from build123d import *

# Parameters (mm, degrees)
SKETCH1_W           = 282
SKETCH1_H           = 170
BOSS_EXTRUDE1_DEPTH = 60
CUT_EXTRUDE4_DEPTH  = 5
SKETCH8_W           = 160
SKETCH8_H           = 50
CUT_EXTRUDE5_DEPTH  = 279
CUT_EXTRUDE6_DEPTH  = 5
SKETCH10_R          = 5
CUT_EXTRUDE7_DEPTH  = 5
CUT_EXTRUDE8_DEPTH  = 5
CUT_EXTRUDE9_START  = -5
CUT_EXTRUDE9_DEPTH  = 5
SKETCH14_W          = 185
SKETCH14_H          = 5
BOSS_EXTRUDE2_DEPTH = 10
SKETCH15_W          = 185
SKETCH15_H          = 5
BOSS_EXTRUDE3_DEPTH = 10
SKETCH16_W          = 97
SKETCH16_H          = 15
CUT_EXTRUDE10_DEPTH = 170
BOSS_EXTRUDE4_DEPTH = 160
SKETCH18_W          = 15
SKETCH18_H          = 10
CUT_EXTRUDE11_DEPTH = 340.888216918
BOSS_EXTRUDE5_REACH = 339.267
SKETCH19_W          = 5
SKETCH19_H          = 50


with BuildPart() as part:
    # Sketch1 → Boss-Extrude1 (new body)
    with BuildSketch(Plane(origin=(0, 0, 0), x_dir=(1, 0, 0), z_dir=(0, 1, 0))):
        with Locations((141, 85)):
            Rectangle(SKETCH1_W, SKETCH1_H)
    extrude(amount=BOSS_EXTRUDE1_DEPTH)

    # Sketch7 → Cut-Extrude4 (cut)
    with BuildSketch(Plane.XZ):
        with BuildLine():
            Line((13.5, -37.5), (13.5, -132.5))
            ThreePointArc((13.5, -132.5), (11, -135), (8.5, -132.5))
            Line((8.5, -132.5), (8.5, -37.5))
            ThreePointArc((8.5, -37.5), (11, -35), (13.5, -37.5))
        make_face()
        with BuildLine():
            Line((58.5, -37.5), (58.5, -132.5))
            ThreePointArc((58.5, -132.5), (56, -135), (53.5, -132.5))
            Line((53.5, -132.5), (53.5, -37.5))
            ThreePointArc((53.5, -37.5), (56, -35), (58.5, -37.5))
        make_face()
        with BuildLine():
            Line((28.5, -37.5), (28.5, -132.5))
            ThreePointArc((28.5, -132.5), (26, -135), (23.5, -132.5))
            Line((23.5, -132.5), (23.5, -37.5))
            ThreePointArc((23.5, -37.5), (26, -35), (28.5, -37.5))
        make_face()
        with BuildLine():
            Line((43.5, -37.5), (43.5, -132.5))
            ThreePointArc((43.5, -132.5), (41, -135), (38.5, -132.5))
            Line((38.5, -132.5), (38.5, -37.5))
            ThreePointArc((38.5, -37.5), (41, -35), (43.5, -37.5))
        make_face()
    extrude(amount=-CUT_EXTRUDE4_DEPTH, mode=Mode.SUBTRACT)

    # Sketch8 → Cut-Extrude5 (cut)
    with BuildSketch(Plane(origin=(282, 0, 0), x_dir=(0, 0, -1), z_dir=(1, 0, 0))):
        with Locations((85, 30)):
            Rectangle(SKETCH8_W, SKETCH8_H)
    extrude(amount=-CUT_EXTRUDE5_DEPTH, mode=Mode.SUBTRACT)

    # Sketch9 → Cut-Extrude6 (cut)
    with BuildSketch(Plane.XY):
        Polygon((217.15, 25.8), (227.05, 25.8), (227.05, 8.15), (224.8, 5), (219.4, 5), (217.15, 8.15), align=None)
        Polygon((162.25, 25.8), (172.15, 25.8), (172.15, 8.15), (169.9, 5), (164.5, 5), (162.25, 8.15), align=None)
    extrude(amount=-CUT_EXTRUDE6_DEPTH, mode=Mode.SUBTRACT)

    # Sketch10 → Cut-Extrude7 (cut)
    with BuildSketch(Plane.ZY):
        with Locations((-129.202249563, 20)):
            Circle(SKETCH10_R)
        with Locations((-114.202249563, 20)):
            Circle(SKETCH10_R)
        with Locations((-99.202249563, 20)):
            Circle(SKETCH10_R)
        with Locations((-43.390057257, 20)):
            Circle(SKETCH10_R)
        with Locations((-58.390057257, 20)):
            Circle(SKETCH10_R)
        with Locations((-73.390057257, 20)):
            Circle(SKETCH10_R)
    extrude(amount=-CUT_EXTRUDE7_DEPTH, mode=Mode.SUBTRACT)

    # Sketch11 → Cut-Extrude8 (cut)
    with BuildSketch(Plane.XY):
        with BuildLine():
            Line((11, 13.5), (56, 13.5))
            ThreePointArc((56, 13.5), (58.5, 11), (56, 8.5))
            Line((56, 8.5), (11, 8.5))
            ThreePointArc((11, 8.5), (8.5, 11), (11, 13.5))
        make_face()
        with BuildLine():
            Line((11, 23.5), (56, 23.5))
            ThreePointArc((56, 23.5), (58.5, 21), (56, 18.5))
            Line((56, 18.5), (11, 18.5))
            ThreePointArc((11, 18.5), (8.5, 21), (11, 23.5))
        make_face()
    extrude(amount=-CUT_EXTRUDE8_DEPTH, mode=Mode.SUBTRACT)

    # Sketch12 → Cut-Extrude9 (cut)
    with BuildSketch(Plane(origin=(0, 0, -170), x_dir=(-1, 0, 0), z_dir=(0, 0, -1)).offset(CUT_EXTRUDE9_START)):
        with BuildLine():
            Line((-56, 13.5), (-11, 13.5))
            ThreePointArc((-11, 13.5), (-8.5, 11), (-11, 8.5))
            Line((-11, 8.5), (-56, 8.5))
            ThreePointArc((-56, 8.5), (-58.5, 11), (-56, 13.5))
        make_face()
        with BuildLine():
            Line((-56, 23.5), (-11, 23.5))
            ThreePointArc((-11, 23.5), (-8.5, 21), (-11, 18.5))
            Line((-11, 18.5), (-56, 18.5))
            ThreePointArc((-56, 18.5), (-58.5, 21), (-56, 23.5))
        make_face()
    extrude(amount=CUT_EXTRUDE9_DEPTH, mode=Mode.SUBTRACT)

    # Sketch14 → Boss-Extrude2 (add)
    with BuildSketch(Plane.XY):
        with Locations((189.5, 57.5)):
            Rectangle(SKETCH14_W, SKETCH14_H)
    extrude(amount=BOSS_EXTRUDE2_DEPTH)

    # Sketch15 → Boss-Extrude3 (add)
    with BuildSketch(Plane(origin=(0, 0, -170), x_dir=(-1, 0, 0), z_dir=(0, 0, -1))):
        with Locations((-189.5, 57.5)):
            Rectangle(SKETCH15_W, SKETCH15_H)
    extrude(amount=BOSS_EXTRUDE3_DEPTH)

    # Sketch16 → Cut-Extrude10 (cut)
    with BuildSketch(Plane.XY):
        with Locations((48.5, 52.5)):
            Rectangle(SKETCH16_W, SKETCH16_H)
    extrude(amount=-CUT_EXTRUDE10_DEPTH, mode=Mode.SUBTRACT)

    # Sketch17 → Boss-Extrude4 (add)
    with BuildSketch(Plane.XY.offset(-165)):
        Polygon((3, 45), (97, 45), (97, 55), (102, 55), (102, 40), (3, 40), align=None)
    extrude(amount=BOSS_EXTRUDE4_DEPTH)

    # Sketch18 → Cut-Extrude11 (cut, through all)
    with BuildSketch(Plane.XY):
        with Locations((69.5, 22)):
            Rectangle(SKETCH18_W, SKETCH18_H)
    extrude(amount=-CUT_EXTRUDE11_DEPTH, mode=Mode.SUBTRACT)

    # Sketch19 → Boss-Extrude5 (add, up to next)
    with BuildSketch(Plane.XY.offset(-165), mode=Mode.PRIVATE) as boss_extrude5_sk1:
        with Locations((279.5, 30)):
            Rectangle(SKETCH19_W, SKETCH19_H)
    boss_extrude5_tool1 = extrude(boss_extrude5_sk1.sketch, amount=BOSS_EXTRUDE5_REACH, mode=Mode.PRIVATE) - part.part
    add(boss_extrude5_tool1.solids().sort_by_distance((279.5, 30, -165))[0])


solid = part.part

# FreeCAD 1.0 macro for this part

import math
import FreeCAD as App
import Part
import Sketcher

V = App.Vector
Q = App.Units.Quantity

doc = App.newDocument("Part")
body = doc.addObject("PartDesign::Body", "Body")

# Sketch on XZ plane
sketch1 = body.newObject("Sketcher::SketchObject", "Sketch")
sketch1.AttachmentSupport = (doc.getObject("XZ_Plane"), [""])
sketch1.MapMode = "FlatFace"
sketch1.addGeometry(Part.LineSegment(V(0, -170, 0), V(0, 0, 0)), False)
sketch1.addGeometry(Part.LineSegment(V(0, 0, 0), V(282, 0, 0)), False)
sketch1.addGeometry(Part.LineSegment(V(282, 0, 0), V(282, -170, 0)), False)
sketch1.addGeometry(Part.LineSegment(V(282, -170, 0), V(0, -170, 0)), False)
sketch1.addConstraint(Sketcher.Constraint("Coincident", 0, 2, 1, 1))
sketch1.addConstraint(Sketcher.Constraint("Coincident", 1, 2, 2, 1))
sketch1.addConstraint(Sketcher.Constraint("Coincident", 2, 2, 3, 1))
sketch1.addConstraint(Sketcher.Constraint("Coincident", 3, 2, 0, 1))
sketch1.addConstraint(Sketcher.Constraint("Vertical", 0))
sketch1.addConstraint(Sketcher.Constraint("Horizontal", 1))
sketch1.addConstraint(Sketcher.Constraint("Vertical", 2))
sketch1.addConstraint(Sketcher.Constraint("Horizontal", 3))
sketch1.addConstraint(Sketcher.Constraint("Coincident", 0, 2, -1, 1))
sketch1.addConstraint(Sketcher.Constraint("DistanceX", 1, 1, 1, 2, Q("282 mm")))
sketch1.addConstraint(Sketcher.Constraint("DistanceY", 0, 1, 0, 2, Q("170 mm")))
pad1 = body.newObject("PartDesign::Pad", "Pad")
pad1.Profile = sketch1
pad1.Length = 60
pad1.Reversed = True

# Sketch on XZ plane
sketch2 = body.newObject("Sketcher::SketchObject", "Sketch001")
sketch2.AttachmentSupport = (doc.getObject("XZ_Plane"), [""])
sketch2.MapMode = "FlatFace"
sketch2.addGeometry(Part.LineSegment(V(13.5, -132.5, 0), V(13.5, -37.5, 0)), False)
sketch2.addGeometry(Part.ArcOfCircle(Part.Circle(V(11, -37.5, 0), V(0, 0, 1), 2.5), math.radians(0), math.radians(180)), False)
sketch2.addGeometry(Part.LineSegment(V(8.5, -37.5, 0), V(8.5, -132.5, 0)), False)
sketch2.addGeometry(Part.ArcOfCircle(Part.Circle(V(11, -132.5, 0), V(0, 0, 1), 2.5), math.radians(180), math.radians(360)), False)
sketch2.addGeometry(Part.LineSegment(V(58.5, -132.5, 0), V(58.5, -37.5, 0)), False)
sketch2.addGeometry(Part.ArcOfCircle(Part.Circle(V(56, -37.5, 0), V(0, 0, 1), 2.5), math.radians(0), math.radians(180)), False)
sketch2.addGeometry(Part.LineSegment(V(53.5, -37.5, 0), V(53.5, -132.5, 0)), False)
sketch2.addGeometry(Part.ArcOfCircle(Part.Circle(V(56, -132.5, 0), V(0, 0, 1), 2.5), math.radians(180), math.radians(360)), False)
sketch2.addGeometry(Part.LineSegment(V(28.5, -132.5, 0), V(28.5, -37.5, 0)), False)
sketch2.addGeometry(Part.ArcOfCircle(Part.Circle(V(26, -37.5, 0), V(0, 0, 1), 2.5), math.radians(0), math.radians(180)), False)
sketch2.addGeometry(Part.LineSegment(V(23.5, -37.5, 0), V(23.5, -132.5, 0)), False)
sketch2.addGeometry(Part.ArcOfCircle(Part.Circle(V(26, -132.5, 0), V(0, 0, 1), 2.5), math.radians(180), math.radians(360)), False)
sketch2.addGeometry(Part.LineSegment(V(43.5, -132.5, 0), V(43.5, -37.5, 0)), False)
sketch2.addGeometry(Part.ArcOfCircle(Part.Circle(V(41, -37.5, 0), V(0, 0, 1), 2.5), math.radians(0), math.radians(180)), False)
sketch2.addGeometry(Part.LineSegment(V(38.5, -37.5, 0), V(38.5, -132.5, 0)), False)
sketch2.addGeometry(Part.ArcOfCircle(Part.Circle(V(41, -132.5, 0), V(0, 0, 1), 2.5), math.radians(180), math.radians(360)), False)
sketch2.addConstraint(Sketcher.Constraint("Tangent", 0, 2, 1, 1))
sketch2.addConstraint(Sketcher.Constraint("Tangent", 1, 2, 2, 1))
sketch2.addConstraint(Sketcher.Constraint("Tangent", 2, 2, 3, 1))
sketch2.addConstraint(Sketcher.Constraint("Tangent", 3, 2, 0, 1))
sketch2.addConstraint(Sketcher.Constraint("Tangent", 4, 2, 5, 1))
sketch2.addConstraint(Sketcher.Constraint("Tangent", 5, 2, 6, 1))
sketch2.addConstraint(Sketcher.Constraint("Tangent", 6, 2, 7, 1))
sketch2.addConstraint(Sketcher.Constraint("Tangent", 7, 2, 4, 1))
sketch2.addConstraint(Sketcher.Constraint("Tangent", 8, 2, 9, 1))
sketch2.addConstraint(Sketcher.Constraint("Tangent", 9, 2, 10, 1))
sketch2.addConstraint(Sketcher.Constraint("Tangent", 10, 2, 11, 1))
sketch2.addConstraint(Sketcher.Constraint("Tangent", 11, 2, 8, 1))
sketch2.addConstraint(Sketcher.Constraint("Tangent", 12, 2, 13, 1))
sketch2.addConstraint(Sketcher.Constraint("Tangent", 13, 2, 14, 1))
sketch2.addConstraint(Sketcher.Constraint("Tangent", 14, 2, 15, 1))
sketch2.addConstraint(Sketcher.Constraint("Tangent", 15, 2, 12, 1))
sketch2.addConstraint(Sketcher.Constraint("Vertical", 0))
sketch2.addConstraint(Sketcher.Constraint("Vertical", 2))
sketch2.addConstraint(Sketcher.Constraint("Vertical", 4))
sketch2.addConstraint(Sketcher.Constraint("Vertical", 6))
sketch2.addConstraint(Sketcher.Constraint("Vertical", 8))
sketch2.addConstraint(Sketcher.Constraint("Vertical", 10))
sketch2.addConstraint(Sketcher.Constraint("Vertical", 12))
sketch2.addConstraint(Sketcher.Constraint("Vertical", 14))
sketch2.addConstraint(Sketcher.Constraint("Equal", 3, 5))
sketch2.addConstraint(Sketcher.Constraint("Equal", 7, 9))
sketch2.addConstraint(Sketcher.Constraint("Equal", 11, 13))
sketch2.addConstraint(Sketcher.Constraint("Horizontal", 1, 3, 5, 3))
sketch2.addConstraint(Sketcher.Constraint("Horizontal", 3, 3, 7, 3))
sketch2.addConstraint(Sketcher.Constraint("Horizontal", 5, 3, 9, 3))
sketch2.addConstraint(Sketcher.Constraint("Horizontal", 7, 3, 11, 3))
sketch2.addConstraint(Sketcher.Constraint("Horizontal", 9, 3, 13, 3))
sketch2.addConstraint(Sketcher.Constraint("Horizontal", 11, 3, 15, 3))
sketch2.addConstraint(Sketcher.Constraint("Radius", 1, Q("2.5 mm")))
sketch2.addConstraint(Sketcher.Constraint("DistanceY", 0, 1, 0, 2, Q("95 mm")))
sketch2.addConstraint(Sketcher.Constraint("DistanceX", -1, 1, 1, 3, Q("11 mm")))
sketch2.addConstraint(Sketcher.Constraint("DistanceX", -1, 1, 5, 3, Q("56 mm")))
sketch2.addConstraint(Sketcher.Constraint("DistanceX", -1, 1, 9, 3, Q("26 mm")))
sketch2.addConstraint(Sketcher.Constraint("DistanceX", -1, 1, 13, 3, Q("41 mm")))
sketch2.addConstraint(Sketcher.Constraint("DistanceY", 1, 3, -1, 1, Q("37.5 mm")))
pocket1 = body.newObject("PartDesign::Pocket", "Pocket")
pocket1.Profile = sketch2
pocket1.Length = 5

# Sketch on YZ plane
sketch3 = body.newObject("Sketcher::SketchObject", "Sketch002")
sketch3.AttachmentSupport = (doc.getObject("YZ_Plane"), [""])
sketch3.MapMode = "FlatFace"
sketch3.AttachmentOffset = App.Placement(V(0, 0, 282), App.Rotation())
sketch3.addGeometry(Part.LineSegment(V(55, -5, 0), V(5, -5, 0)), False)
sketch3.addGeometry(Part.LineSegment(V(5, -5, 0), V(5, -165, 0)), False)
sketch3.addGeometry(Part.LineSegment(V(5, -165, 0), V(55, -165, 0)), False)
sketch3.addGeometry(Part.LineSegment(V(55, -165, 0), V(55, -5, 0)), False)
sketch3.addConstraint(Sketcher.Constraint("Coincident", 0, 2, 1, 1))
sketch3.addConstraint(Sketcher.Constraint("Coincident", 1, 2, 2, 1))
sketch3.addConstraint(Sketcher.Constraint("Coincident", 2, 2, 3, 1))
sketch3.addConstraint(Sketcher.Constraint("Coincident", 3, 2, 0, 1))
sketch3.addConstraint(Sketcher.Constraint("Horizontal", 0))
sketch3.addConstraint(Sketcher.Constraint("Vertical", 1))
sketch3.addConstraint(Sketcher.Constraint("Horizontal", 2))
sketch3.addConstraint(Sketcher.Constraint("Vertical", 3))
sketch3.addConstraint(Sketcher.Constraint("DistanceX", 0, 2, 0, 1, Q("50 mm")))
sketch3.addConstraint(Sketcher.Constraint("DistanceY", 1, 2, 1, 1, Q("160 mm")))
sketch3.addConstraint(Sketcher.Constraint("DistanceX", -1, 1, 0, 2, Q("5 mm")))
sketch3.addConstraint(Sketcher.Constraint("DistanceY", 0, 2, -1, 1, Q("5 mm")))
pocket2 = body.newObject("PartDesign::Pocket", "Pocket001")
pocket2.Profile = sketch3
pocket2.Length = 279

# Sketch on XY plane
sketch4 = body.newObject("Sketcher::SketchObject", "Sketch003")
sketch4.AttachmentSupport = (doc.getObject("XY_Plane"), [""])
sketch4.MapMode = "FlatFace"
sketch4.addGeometry(Part.LineSegment(V(227.1, 25.8, 0), V(217.2, 25.8, 0)), False)
sketch4.addGeometry(Part.LineSegment(V(217.2, 25.8, 0), V(217.2, 8.2, 0)), False)
sketch4.addGeometry(Part.LineSegment(V(217.2, 8.2, 0), V(219.4, 5, 0)), False)
sketch4.addGeometry(Part.LineSegment(V(219.4, 5, 0), V(224.8, 5, 0)), False)
sketch4.addGeometry(Part.LineSegment(V(224.8, 5, 0), V(227.1, 8.2, 0)), False)
sketch4.addGeometry(Part.LineSegment(V(227.1, 8.2, 0), V(227.1, 25.8, 0)), False)
sketch4.addGeometry(Part.LineSegment(V(172.2, 25.8, 0), V(162.2, 25.8, 0)), False)
sketch4.addGeometry(Part.LineSegment(V(162.2, 25.8, 0), V(162.2, 8.2, 0)), False)
sketch4.addGeometry(Part.LineSegment(V(162.2, 8.2, 0), V(164.5, 5, 0)), False)
sketch4.addGeometry(Part.LineSegment(V(164.5, 5, 0), V(169.9, 5, 0)), False)
sketch4.addGeometry(Part.LineSegment(V(169.9, 5, 0), V(172.2, 8.2, 0)), False)
sketch4.addGeometry(Part.LineSegment(V(172.2, 8.2, 0), V(172.2, 25.8, 0)), False)
sketch4.addConstraint(Sketcher.Constraint("Coincident", 0, 2, 1, 1))
sketch4.addConstraint(Sketcher.Constraint("Coincident", 1, 2, 2, 1))
sketch4.addConstraint(Sketcher.Constraint("Coincident", 2, 2, 3, 1))
sketch4.addConstraint(Sketcher.Constraint("Coincident", 3, 2, 4, 1))
sketch4.addConstraint(Sketcher.Constraint("Coincident", 4, 2, 5, 1))
sketch4.addConstraint(Sketcher.Constraint("Coincident", 5, 2, 0, 1))
sketch4.addConstraint(Sketcher.Constraint("Coincident", 6, 2, 7, 1))
sketch4.addConstraint(Sketcher.Constraint("Coincident", 7, 2, 8, 1))
sketch4.addConstraint(Sketcher.Constraint("Coincident", 8, 2, 9, 1))
sketch4.addConstraint(Sketcher.Constraint("Coincident", 9, 2, 10, 1))
sketch4.addConstraint(Sketcher.Constraint("Coincident", 10, 2, 11, 1))
sketch4.addConstraint(Sketcher.Constraint("Coincident", 11, 2, 6, 1))
sketch4.addConstraint(Sketcher.Constraint("Horizontal", 0))
sketch4.addConstraint(Sketcher.Constraint("Vertical", 1))
sketch4.addConstraint(Sketcher.Constraint("Horizontal", 3))
sketch4.addConstraint(Sketcher.Constraint("Vertical", 5))
sketch4.addConstraint(Sketcher.Constraint("Horizontal", 6))
sketch4.addConstraint(Sketcher.Constraint("Vertical", 7))
sketch4.addConstraint(Sketcher.Constraint("Horizontal", 9))
sketch4.addConstraint(Sketcher.Constraint("Vertical", 11))
sketch4.addConstraint(Sketcher.Constraint("Parallel", 2, 8))
sketch4.addConstraint(Sketcher.Constraint("Parallel", 4, 10))
sketch4.addConstraint(Sketcher.Constraint("Horizontal", 1, 2, 4, 2))
sketch4.addConstraint(Sketcher.Constraint("Horizontal", 5, 2, 6, 2))
sketch4.addConstraint(Sketcher.Constraint("Horizontal", 4, 2, 7, 2))
sketch4.addConstraint(Sketcher.Constraint("Horizontal", 3, 2, 8, 2))
sketch4.addConstraint(Sketcher.Constraint("Horizontal", 7, 2, 10, 2))
sketch4.addConstraint(Sketcher.Constraint("Equal", 0, 6))
sketch4.addConstraint(Sketcher.Constraint("Equal", 2, 4))
sketch4.addConstraint(Sketcher.Constraint("DistanceX", 0, 2, 0, 1, Q("9.9 mm")))
sketch4.addConstraint(Sketcher.Constraint("DistanceX", 3, 1, 3, 2, Q("5.4 mm")))
sketch4.addConstraint(Sketcher.Constraint("DistanceY", -1, 1, 2, 2, Q("5 mm")))
sketch4.addConstraint(Sketcher.Constraint("DistanceX", 10, 2, 1, 2, Q("45 mm")))
sketch4.addConstraint(Sketcher.Constraint("DistanceY", 1, 2, 1, 1, Q("17.65 mm")))
sketch4.addConstraint(Sketcher.Constraint("DistanceY", -1, 1, 0, 2, Q("25.8 mm")))
sketch4.addConstraint(Sketcher.Constraint("DistanceX", -1, 1, 2, 2, Q("219.4 mm")))
pocket3 = body.newObject("PartDesign::Pocket", "Pocket002")
pocket3.Profile = sketch4
pocket3.Length = 5

# Sketch on YZ plane
sketch5 = body.newObject("Sketcher::SketchObject", "Sketch004")
sketch5.AttachmentSupport = (doc.getObject("YZ_Plane"), [""])
sketch5.MapMode = "FlatFace"
sketch5.addGeometry(Part.Circle(V(20, -129, 0), V(0, 0, 1), 5), False)
sketch5.addGeometry(Part.Circle(V(20, -114, 0), V(0, 0, 1), 5), False)
sketch5.addGeometry(Part.Circle(V(20, -99, 0), V(0, 0, 1), 5), False)
sketch5.addGeometry(Part.Circle(V(20, -43, 0), V(0, 0, 1), 5), False)
sketch5.addGeometry(Part.Circle(V(20, -58, 0), V(0, 0, 1), 5), False)
sketch5.addGeometry(Part.Circle(V(20, -73, 0), V(0, 0, 1), 5), False)
sketch5.addConstraint(Sketcher.Constraint("Equal", 0, 1))
sketch5.addConstraint(Sketcher.Constraint("Equal", 1, 2))
sketch5.addConstraint(Sketcher.Constraint("Equal", 2, 3))
sketch5.addConstraint(Sketcher.Constraint("Equal", 3, 4))
sketch5.addConstraint(Sketcher.Constraint("Equal", 4, 5))
sketch5.addConstraint(Sketcher.Constraint("Vertical", 0, 3, 1, 3))
sketch5.addConstraint(Sketcher.Constraint("Vertical", 1, 3, 2, 3))
sketch5.addConstraint(Sketcher.Constraint("Vertical", 2, 3, 3, 3))
sketch5.addConstraint(Sketcher.Constraint("Vertical", 3, 3, 4, 3))
sketch5.addConstraint(Sketcher.Constraint("Vertical", 4, 3, 5, 3))
sketch5.addConstraint(Sketcher.Constraint("Diameter", 0, Q("10 mm")))
sketch5.addConstraint(Sketcher.Constraint("DistanceX", -1, 1, 0, 3, Q("20 mm")))
sketch5.addConstraint(Sketcher.Constraint("DistanceY", 0, 3, 1, 3, Q("15 mm")))
sketch5.addConstraint(Sketcher.Constraint("DistanceY", 1, 3, 2, 3, Q("15 mm")))
sketch5.addConstraint(Sketcher.Constraint("DistanceY", 4, 3, 3, 3, Q("15 mm")))
sketch5.addConstraint(Sketcher.Constraint("DistanceY", 5, 3, 4, 3, Q("15 mm")))
sketch5.addConstraint(Sketcher.Constraint("DistanceY", 0, 3, -1, 1, Q("129.20225 mm")))
sketch5.addConstraint(Sketcher.Constraint("DistanceY", 3, 3, -1, 1, Q("43.390057 mm")))
pocket4 = body.newObject("PartDesign::Pocket", "Pocket003")
pocket4.Profile = sketch5
pocket4.Length = 5
pocket4.Reversed = True

# Sketch on XY plane
sketch6 = body.newObject("Sketcher::SketchObject", "Sketch005")
sketch6.AttachmentSupport = (doc.getObject("XY_Plane"), [""])
sketch6.MapMode = "FlatFace"
sketch6.addGeometry(Part.LineSegment(V(56, 13.5, 0), V(11, 13.5, 0)), False)
sketch6.addGeometry(Part.ArcOfCircle(Part.Circle(V(11, 11, 0), V(0, 0, 1), 2.5), math.radians(90), math.radians(270)), False)
sketch6.addGeometry(Part.LineSegment(V(11, 8.5, 0), V(56, 8.5, 0)), False)
sketch6.addGeometry(Part.ArcOfCircle(Part.Circle(V(56, 11, 0), V(0, 0, 1), 2.5), math.radians(-90), math.radians(90)), False)
sketch6.addGeometry(Part.LineSegment(V(56, 23.5, 0), V(11, 23.5, 0)), False)
sketch6.addGeometry(Part.ArcOfCircle(Part.Circle(V(11, 21, 0), V(0, 0, 1), 2.5), math.radians(90), math.radians(270)), False)
sketch6.addGeometry(Part.LineSegment(V(11, 18.5, 0), V(56, 18.5, 0)), False)
sketch6.addGeometry(Part.ArcOfCircle(Part.Circle(V(56, 21, 0), V(0, 0, 1), 2.5), math.radians(-90), math.radians(90)), False)
sketch6.addConstraint(Sketcher.Constraint("Tangent", 0, 2, 1, 1))
sketch6.addConstraint(Sketcher.Constraint("Tangent", 1, 2, 2, 1))
sketch6.addConstraint(Sketcher.Constraint("Tangent", 2, 2, 3, 1))
sketch6.addConstraint(Sketcher.Constraint("Tangent", 3, 2, 0, 1))
sketch6.addConstraint(Sketcher.Constraint("Tangent", 4, 2, 5, 1))
sketch6.addConstraint(Sketcher.Constraint("Tangent", 5, 2, 6, 1))
sketch6.addConstraint(Sketcher.Constraint("Tangent", 6, 2, 7, 1))
sketch6.addConstraint(Sketcher.Constraint("Tangent", 7, 2, 4, 1))
sketch6.addConstraint(Sketcher.Constraint("Horizontal", 0))
sketch6.addConstraint(Sketcher.Constraint("Horizontal", 2))
sketch6.addConstraint(Sketcher.Constraint("Horizontal", 4))
sketch6.addConstraint(Sketcher.Constraint("Horizontal", 6))
sketch6.addConstraint(Sketcher.Constraint("Equal", 3, 5))
sketch6.addConstraint(Sketcher.Constraint("Vertical", 1, 3, 5, 3))
sketch6.addConstraint(Sketcher.Constraint("Vertical", 3, 3, 7, 3))
sketch6.addConstraint(Sketcher.Constraint("Radius", 1, Q("2.5 mm")))
sketch6.addConstraint(Sketcher.Constraint("DistanceX", 0, 2, 0, 1, Q("45 mm")))
sketch6.addConstraint(Sketcher.Constraint("DistanceX", -1, 1, 1, 3, Q("11 mm")))
sketch6.addConstraint(Sketcher.Constraint("DistanceY", -1, 1, 1, 3, Q("11 mm")))
sketch6.addConstraint(Sketcher.Constraint("DistanceY", -1, 1, 5, 3, Q("21 mm")))
pocket5 = body.newObject("PartDesign::Pocket", "Pocket004")
pocket5.Profile = sketch6
pocket5.Length = 5

# Sketch on XY plane
sketch7 = body.newObject("Sketcher::SketchObject", "Sketch006")
sketch7.AttachmentSupport = (doc.getObject("XY_Plane"), [""])
sketch7.MapMode = "FlatFace"
sketch7.AttachmentOffset = App.Placement(V(0, 0, -165), App.Rotation())
sketch7.addGeometry(Part.LineSegment(V(11, 13.5, 0), V(56, 13.5, 0)), False)
sketch7.addGeometry(Part.ArcOfCircle(Part.Circle(V(56, 11, 0), V(0, 0, 1), 2.5), math.radians(-90), math.radians(90)), False)
sketch7.addGeometry(Part.LineSegment(V(56, 8.5, 0), V(11, 8.5, 0)), False)
sketch7.addGeometry(Part.ArcOfCircle(Part.Circle(V(11, 11, 0), V(0, 0, 1), 2.5), math.radians(90), math.radians(270)), False)
sketch7.addGeometry(Part.LineSegment(V(11, 23.5, 0), V(56, 23.5, 0)), False)
sketch7.addGeometry(Part.ArcOfCircle(Part.Circle(V(56, 21, 0), V(0, 0, 1), 2.5), math.radians(-90), math.radians(90)), False)
sketch7.addGeometry(Part.LineSegment(V(56, 18.5, 0), V(11, 18.5, 0)), False)
sketch7.addGeometry(Part.ArcOfCircle(Part.Circle(V(11, 21, 0), V(0, 0, 1), 2.5), math.radians(90), math.radians(270)), False)
sketch7.addConstraint(Sketcher.Constraint("Tangent", 0, 2, 1, 2))
sketch7.addConstraint(Sketcher.Constraint("Tangent", 1, 1, 2, 1))
sketch7.addConstraint(Sketcher.Constraint("Tangent", 2, 2, 3, 2))
sketch7.addConstraint(Sketcher.Constraint("Tangent", 3, 1, 0, 1))
sketch7.addConstraint(Sketcher.Constraint("Tangent", 4, 2, 5, 2))
sketch7.addConstraint(Sketcher.Constraint("Tangent", 5, 1, 6, 1))
sketch7.addConstraint(Sketcher.Constraint("Tangent", 6, 2, 7, 2))
sketch7.addConstraint(Sketcher.Constraint("Tangent", 7, 1, 4, 1))
sketch7.addConstraint(Sketcher.Constraint("Horizontal", 0))
sketch7.addConstraint(Sketcher.Constraint("Horizontal", 2))
sketch7.addConstraint(Sketcher.Constraint("Horizontal", 4))
sketch7.addConstraint(Sketcher.Constraint("Horizontal", 6))
sketch7.addConstraint(Sketcher.Constraint("Equal", 3, 5))
sketch7.addConstraint(Sketcher.Constraint("Vertical", 1, 3, 5, 3))
sketch7.addConstraint(Sketcher.Constraint("Vertical", 3, 3, 7, 3))
sketch7.addConstraint(Sketcher.Constraint("Radius", 1, Q("2.5 mm")))
sketch7.addConstraint(Sketcher.Constraint("DistanceX", 0, 1, 0, 2, Q("45 mm")))
sketch7.addConstraint(Sketcher.Constraint("DistanceX", -1, 1, 1, 3, Q("56 mm")))
sketch7.addConstraint(Sketcher.Constraint("DistanceY", -1, 1, 1, 3, Q("11 mm")))
sketch7.addConstraint(Sketcher.Constraint("DistanceY", -1, 1, 5, 3, Q("21 mm")))
pocket6 = body.newObject("PartDesign::Pocket", "Pocket005")
pocket6.Profile = sketch7
pocket6.Length = 5

# Sketch on XY plane
sketch8 = body.newObject("Sketcher::SketchObject", "Sketch007")
sketch8.AttachmentSupport = (doc.getObject("XY_Plane"), [""])
sketch8.MapMode = "FlatFace"
sketch8.addGeometry(Part.LineSegment(V(97, 60, 0), V(97, 55, 0)), False)
sketch8.addGeometry(Part.LineSegment(V(97, 55, 0), V(282, 55, 0)), False)
sketch8.addGeometry(Part.LineSegment(V(282, 55, 0), V(282, 60, 0)), False)
sketch8.addGeometry(Part.LineSegment(V(282, 60, 0), V(97, 60, 0)), False)
sketch8.addConstraint(Sketcher.Constraint("Coincident", 0, 2, 1, 1))
sketch8.addConstraint(Sketcher.Constraint("Coincident", 1, 2, 2, 1))
sketch8.addConstraint(Sketcher.Constraint("Coincident", 2, 2, 3, 1))
sketch8.addConstraint(Sketcher.Constraint("Coincident", 3, 2, 0, 1))
sketch8.addConstraint(Sketcher.Constraint("Vertical", 0))
sketch8.addConstraint(Sketcher.Constraint("Horizontal", 1))
sketch8.addConstraint(Sketcher.Constraint("Vertical", 2))
sketch8.addConstraint(Sketcher.Constraint("Horizontal", 3))
sketch8.addConstraint(Sketcher.Constraint("DistanceX", 1, 1, 1, 2, Q("185 mm")))
sketch8.addConstraint(Sketcher.Constraint("DistanceY", 0, 2, 0, 1, Q("5 mm")))
sketch8.addConstraint(Sketcher.Constraint("DistanceX", -1, 1, 0, 2, Q("97 mm")))
sketch8.addConstraint(Sketcher.Constraint("DistanceY", -1, 1, 0, 2, Q("55 mm")))
pad2 = body.newObject("PartDesign::Pad", "Pad001")
pad2.Profile = sketch8
pad2.Length = 10

# Sketch on XY plane
sketch9 = body.newObject("Sketcher::SketchObject", "Sketch008")
sketch9.AttachmentSupport = (doc.getObject("XY_Plane"), [""])
sketch9.MapMode = "FlatFace"
sketch9.AttachmentOffset = App.Placement(V(0, 0, -170), App.Rotation())
sketch9.addGeometry(Part.LineSegment(V(282, 60, 0), V(282, 55, 0)), False)
sketch9.addGeometry(Part.LineSegment(V(282, 55, 0), V(97, 55, 0)), False)
sketch9.addGeometry(Part.LineSegment(V(97, 55, 0), V(97, 60, 0)), False)
sketch9.addGeometry(Part.LineSegment(V(97, 60, 0), V(282, 60, 0)), False)
sketch9.addConstraint(Sketcher.Constraint("Coincident", 0, 2, 1, 1))
sketch9.addConstraint(Sketcher.Constraint("Coincident", 1, 2, 2, 1))
sketch9.addConstraint(Sketcher.Constraint("Coincident", 2, 2, 3, 1))
sketch9.addConstraint(Sketcher.Constraint("Coincident", 3, 2, 0, 1))
sketch9.addConstraint(Sketcher.Constraint("Vertical", 0))
sketch9.addConstraint(Sketcher.Constraint("Horizontal", 1))
sketch9.addConstraint(Sketcher.Constraint("Vertical", 2))
sketch9.addConstraint(Sketcher.Constraint("Horizontal", 3))
sketch9.addConstraint(Sketcher.Constraint("DistanceX", 1, 2, 1, 1, Q("185 mm")))
sketch9.addConstraint(Sketcher.Constraint("DistanceY", 0, 2, 0, 1, Q("5 mm")))
sketch9.addConstraint(Sketcher.Constraint("DistanceX", -1, 1, 0, 2, Q("282 mm")))
sketch9.addConstraint(Sketcher.Constraint("DistanceY", -1, 1, 0, 2, Q("55 mm")))
pad3 = body.newObject("PartDesign::Pad", "Pad002")
pad3.Profile = sketch9
pad3.Length = 10
pad3.Reversed = True

# Sketch on XY plane
sketch10 = body.newObject("Sketcher::SketchObject", "Sketch009")
sketch10.AttachmentSupport = (doc.getObject("XY_Plane"), [""])
sketch10.MapMode = "FlatFace"
sketch10.addGeometry(Part.LineSegment(V(0, 60, 0), V(0, 45, 0)), False)
sketch10.addGeometry(Part.LineSegment(V(0, 45, 0), V(97, 45, 0)), False)
sketch10.addGeometry(Part.LineSegment(V(97, 45, 0), V(97, 60, 0)), False)
sketch10.addGeometry(Part.LineSegment(V(97, 60, 0), V(0, 60, 0)), False)
sketch10.addConstraint(Sketcher.Constraint("Coincident", 0, 2, 1, 1))
sketch10.addConstraint(Sketcher.Constraint("Coincident", 1, 2, 2, 1))
sketch10.addConstraint(Sketcher.Constraint("Coincident", 2, 2, 3, 1))
sketch10.addConstraint(Sketcher.Constraint("Coincident", 3, 2, 0, 1))
sketch10.addConstraint(Sketcher.Constraint("Vertical", 0))
sketch10.addConstraint(Sketcher.Constraint("Horizontal", 1))
sketch10.addConstraint(Sketcher.Constraint("Vertical", 2))
sketch10.addConstraint(Sketcher.Constraint("Horizontal", 3))
sketch10.addConstraint(Sketcher.Constraint("PointOnObject", 0, 2, -2))
sketch10.addConstraint(Sketcher.Constraint("DistanceX", 1, 1, 1, 2, Q("97 mm")))
sketch10.addConstraint(Sketcher.Constraint("DistanceY", 0, 2, 0, 1, Q("15 mm")))
sketch10.addConstraint(Sketcher.Constraint("DistanceY", -1, 1, 0, 2, Q("45 mm")))
pocket7 = body.newObject("PartDesign::Pocket", "Pocket006")
pocket7.Profile = sketch10
pocket7.Length = 170

# Sketch on XY plane
sketch11 = body.newObject("Sketcher::SketchObject", "Sketch010")
sketch11.AttachmentSupport = (doc.getObject("XY_Plane"), [""])
sketch11.MapMode = "FlatFace"
sketch11.AttachmentOffset = App.Placement(V(0, 0, -165), App.Rotation())
sketch11.addGeometry(Part.LineSegment(V(97, 45, 0), V(3, 45, 0)), False)
sketch11.addGeometry(Part.LineSegment(V(3, 45, 0), V(3, 40, 0)), False)
sketch11.addGeometry(Part.LineSegment(V(3, 40, 0), V(102, 40, 0)), False)
sketch11.addGeometry(Part.LineSegment(V(102, 40, 0), V(102, 55, 0)), False)
sketch11.addGeometry(Part.LineSegment(V(102, 55, 0), V(97, 55, 0)), False)
sketch11.addGeometry(Part.LineSegment(V(97, 55, 0), V(97, 45, 0)), False)
sketch11.addConstraint(Sketcher.Constraint("Coincident", 0, 2, 1, 1))
sketch11.addConstraint(Sketcher.Constraint("Coincident", 1, 2, 2, 1))
sketch11.addConstraint(Sketcher.Constraint("Coincident", 2, 2, 3, 1))
sketch11.addConstraint(Sketcher.Constraint("Coincident", 3, 2, 4, 1))
sketch11.addConstraint(Sketcher.Constraint("Coincident", 4, 2, 5, 1))
sketch11.addConstraint(Sketcher.Constraint("Coincident", 5, 2, 0, 1))
sketch11.addConstraint(Sketcher.Constraint("Horizontal", 0))
sketch11.addConstraint(Sketcher.Constraint("Vertical", 1))
sketch11.addConstraint(Sketcher.Constraint("Horizontal", 2))
sketch11.addConstraint(Sketcher.Constraint("Vertical", 3))
sketch11.addConstraint(Sketcher.Constraint("Horizontal", 4))
sketch11.addConstraint(Sketcher.Constraint("Vertical", 5))
sketch11.addConstraint(Sketcher.Constraint("Equal", 4, 1))
sketch11.addConstraint(Sketcher.Constraint("DistanceX", 0, 2, 0, 1, Q("94 mm")))
sketch11.addConstraint(Sketcher.Constraint("DistanceX", 2, 1, 2, 2, Q("99 mm")))
sketch11.addConstraint(Sketcher.Constraint("DistanceY", 3, 1, 3, 2, Q("15 mm")))
sketch11.addConstraint(Sketcher.Constraint("DistanceX", -1, 1, 0, 2, Q("3 mm")))
sketch11.addConstraint(Sketcher.Constraint("DistanceY", -1, 1, 0, 2, Q("45 mm")))
pad4 = body.newObject("PartDesign::Pad", "Pad003")
pad4.Profile = sketch11
pad4.Length = 160

# Sketch on XY plane
sketch12 = body.newObject("Sketcher::SketchObject", "Sketch011")
sketch12.AttachmentSupport = (doc.getObject("XY_Plane"), [""])
sketch12.MapMode = "FlatFace"
sketch12.addGeometry(Part.LineSegment(V(62, 27, 0), V(62, 17, 0)), False)
sketch12.addGeometry(Part.LineSegment(V(62, 17, 0), V(77, 17, 0)), False)
sketch12.addGeometry(Part.LineSegment(V(77, 17, 0), V(77, 27, 0)), False)
sketch12.addGeometry(Part.LineSegment(V(77, 27, 0), V(62, 27, 0)), False)
sketch12.addConstraint(Sketcher.Constraint("Coincident", 0, 2, 1, 1))
sketch12.addConstraint(Sketcher.Constraint("Coincident", 1, 2, 2, 1))
sketch12.addConstraint(Sketcher.Constraint("Coincident", 2, 2, 3, 1))
sketch12.addConstraint(Sketcher.Constraint("Coincident", 3, 2, 0, 1))
sketch12.addConstraint(Sketcher.Constraint("Vertical", 0))
sketch12.addConstraint(Sketcher.Constraint("Horizontal", 1))
sketch12.addConstraint(Sketcher.Constraint("Vertical", 2))
sketch12.addConstraint(Sketcher.Constraint("Horizontal", 3))
sketch12.addConstraint(Sketcher.Constraint("DistanceX", 1, 1, 1, 2, Q("15 mm")))
sketch12.addConstraint(Sketcher.Constraint("DistanceY", 0, 2, 0, 1, Q("10 mm")))
sketch12.addConstraint(Sketcher.Constraint("DistanceX", -1, 1, 0, 2, Q("62 mm")))
sketch12.addConstraint(Sketcher.Constraint("DistanceY", -1, 1, 0, 2, Q("17 mm")))
pocket8 = body.newObject("PartDesign::Pocket", "Pocket007")
pocket8.Profile = sketch12
pocket8.Type = "ThroughAll"

# Sketch on XY plane
sketch13 = body.newObject("Sketcher::SketchObject", "Sketch012")
sketch13.AttachmentSupport = (doc.getObject("XY_Plane"), [""])
sketch13.MapMode = "FlatFace"
sketch13.AttachmentOffset = App.Placement(V(0, 0, -165), App.Rotation())
sketch13.addGeometry(Part.LineSegment(V(277, 55, 0), V(277, 5, 0)), False)
sketch13.addGeometry(Part.LineSegment(V(277, 5, 0), V(282, 5, 0)), False)
sketch13.addGeometry(Part.LineSegment(V(282, 5, 0), V(282, 55, 0)), False)
sketch13.addGeometry(Part.LineSegment(V(282, 55, 0), V(277, 55, 0)), False)
sketch13.addConstraint(Sketcher.Constraint("Coincident", 0, 2, 1, 1))
sketch13.addConstraint(Sketcher.Constraint("Coincident", 1, 2, 2, 1))
sketch13.addConstraint(Sketcher.Constraint("Coincident", 2, 2, 3, 1))
sketch13.addConstraint(Sketcher.Constraint("Coincident", 3, 2, 0, 1))
sketch13.addConstraint(Sketcher.Constraint("Vertical", 0))
sketch13.addConstraint(Sketcher.Constraint("Horizontal", 1))
sketch13.addConstraint(Sketcher.Constraint("Vertical", 2))
sketch13.addConstraint(Sketcher.Constraint("Horizontal", 3))
sketch13.addConstraint(Sketcher.Constraint("DistanceX", 1, 1, 1, 2, Q("5 mm")))
sketch13.addConstraint(Sketcher.Constraint("DistanceY", 0, 2, 0, 1, Q("50 mm")))
sketch13.addConstraint(Sketcher.Constraint("DistanceX", -1, 1, 0, 2, Q("277 mm")))
sketch13.addConstraint(Sketcher.Constraint("DistanceY", -1, 1, 0, 2, Q("5 mm")))
pad5 = body.newObject("PartDesign::Pad", "Pad004")
pad5.Profile = sketch13
pad5.Type = "UpToFirst"

doc.recompute()
